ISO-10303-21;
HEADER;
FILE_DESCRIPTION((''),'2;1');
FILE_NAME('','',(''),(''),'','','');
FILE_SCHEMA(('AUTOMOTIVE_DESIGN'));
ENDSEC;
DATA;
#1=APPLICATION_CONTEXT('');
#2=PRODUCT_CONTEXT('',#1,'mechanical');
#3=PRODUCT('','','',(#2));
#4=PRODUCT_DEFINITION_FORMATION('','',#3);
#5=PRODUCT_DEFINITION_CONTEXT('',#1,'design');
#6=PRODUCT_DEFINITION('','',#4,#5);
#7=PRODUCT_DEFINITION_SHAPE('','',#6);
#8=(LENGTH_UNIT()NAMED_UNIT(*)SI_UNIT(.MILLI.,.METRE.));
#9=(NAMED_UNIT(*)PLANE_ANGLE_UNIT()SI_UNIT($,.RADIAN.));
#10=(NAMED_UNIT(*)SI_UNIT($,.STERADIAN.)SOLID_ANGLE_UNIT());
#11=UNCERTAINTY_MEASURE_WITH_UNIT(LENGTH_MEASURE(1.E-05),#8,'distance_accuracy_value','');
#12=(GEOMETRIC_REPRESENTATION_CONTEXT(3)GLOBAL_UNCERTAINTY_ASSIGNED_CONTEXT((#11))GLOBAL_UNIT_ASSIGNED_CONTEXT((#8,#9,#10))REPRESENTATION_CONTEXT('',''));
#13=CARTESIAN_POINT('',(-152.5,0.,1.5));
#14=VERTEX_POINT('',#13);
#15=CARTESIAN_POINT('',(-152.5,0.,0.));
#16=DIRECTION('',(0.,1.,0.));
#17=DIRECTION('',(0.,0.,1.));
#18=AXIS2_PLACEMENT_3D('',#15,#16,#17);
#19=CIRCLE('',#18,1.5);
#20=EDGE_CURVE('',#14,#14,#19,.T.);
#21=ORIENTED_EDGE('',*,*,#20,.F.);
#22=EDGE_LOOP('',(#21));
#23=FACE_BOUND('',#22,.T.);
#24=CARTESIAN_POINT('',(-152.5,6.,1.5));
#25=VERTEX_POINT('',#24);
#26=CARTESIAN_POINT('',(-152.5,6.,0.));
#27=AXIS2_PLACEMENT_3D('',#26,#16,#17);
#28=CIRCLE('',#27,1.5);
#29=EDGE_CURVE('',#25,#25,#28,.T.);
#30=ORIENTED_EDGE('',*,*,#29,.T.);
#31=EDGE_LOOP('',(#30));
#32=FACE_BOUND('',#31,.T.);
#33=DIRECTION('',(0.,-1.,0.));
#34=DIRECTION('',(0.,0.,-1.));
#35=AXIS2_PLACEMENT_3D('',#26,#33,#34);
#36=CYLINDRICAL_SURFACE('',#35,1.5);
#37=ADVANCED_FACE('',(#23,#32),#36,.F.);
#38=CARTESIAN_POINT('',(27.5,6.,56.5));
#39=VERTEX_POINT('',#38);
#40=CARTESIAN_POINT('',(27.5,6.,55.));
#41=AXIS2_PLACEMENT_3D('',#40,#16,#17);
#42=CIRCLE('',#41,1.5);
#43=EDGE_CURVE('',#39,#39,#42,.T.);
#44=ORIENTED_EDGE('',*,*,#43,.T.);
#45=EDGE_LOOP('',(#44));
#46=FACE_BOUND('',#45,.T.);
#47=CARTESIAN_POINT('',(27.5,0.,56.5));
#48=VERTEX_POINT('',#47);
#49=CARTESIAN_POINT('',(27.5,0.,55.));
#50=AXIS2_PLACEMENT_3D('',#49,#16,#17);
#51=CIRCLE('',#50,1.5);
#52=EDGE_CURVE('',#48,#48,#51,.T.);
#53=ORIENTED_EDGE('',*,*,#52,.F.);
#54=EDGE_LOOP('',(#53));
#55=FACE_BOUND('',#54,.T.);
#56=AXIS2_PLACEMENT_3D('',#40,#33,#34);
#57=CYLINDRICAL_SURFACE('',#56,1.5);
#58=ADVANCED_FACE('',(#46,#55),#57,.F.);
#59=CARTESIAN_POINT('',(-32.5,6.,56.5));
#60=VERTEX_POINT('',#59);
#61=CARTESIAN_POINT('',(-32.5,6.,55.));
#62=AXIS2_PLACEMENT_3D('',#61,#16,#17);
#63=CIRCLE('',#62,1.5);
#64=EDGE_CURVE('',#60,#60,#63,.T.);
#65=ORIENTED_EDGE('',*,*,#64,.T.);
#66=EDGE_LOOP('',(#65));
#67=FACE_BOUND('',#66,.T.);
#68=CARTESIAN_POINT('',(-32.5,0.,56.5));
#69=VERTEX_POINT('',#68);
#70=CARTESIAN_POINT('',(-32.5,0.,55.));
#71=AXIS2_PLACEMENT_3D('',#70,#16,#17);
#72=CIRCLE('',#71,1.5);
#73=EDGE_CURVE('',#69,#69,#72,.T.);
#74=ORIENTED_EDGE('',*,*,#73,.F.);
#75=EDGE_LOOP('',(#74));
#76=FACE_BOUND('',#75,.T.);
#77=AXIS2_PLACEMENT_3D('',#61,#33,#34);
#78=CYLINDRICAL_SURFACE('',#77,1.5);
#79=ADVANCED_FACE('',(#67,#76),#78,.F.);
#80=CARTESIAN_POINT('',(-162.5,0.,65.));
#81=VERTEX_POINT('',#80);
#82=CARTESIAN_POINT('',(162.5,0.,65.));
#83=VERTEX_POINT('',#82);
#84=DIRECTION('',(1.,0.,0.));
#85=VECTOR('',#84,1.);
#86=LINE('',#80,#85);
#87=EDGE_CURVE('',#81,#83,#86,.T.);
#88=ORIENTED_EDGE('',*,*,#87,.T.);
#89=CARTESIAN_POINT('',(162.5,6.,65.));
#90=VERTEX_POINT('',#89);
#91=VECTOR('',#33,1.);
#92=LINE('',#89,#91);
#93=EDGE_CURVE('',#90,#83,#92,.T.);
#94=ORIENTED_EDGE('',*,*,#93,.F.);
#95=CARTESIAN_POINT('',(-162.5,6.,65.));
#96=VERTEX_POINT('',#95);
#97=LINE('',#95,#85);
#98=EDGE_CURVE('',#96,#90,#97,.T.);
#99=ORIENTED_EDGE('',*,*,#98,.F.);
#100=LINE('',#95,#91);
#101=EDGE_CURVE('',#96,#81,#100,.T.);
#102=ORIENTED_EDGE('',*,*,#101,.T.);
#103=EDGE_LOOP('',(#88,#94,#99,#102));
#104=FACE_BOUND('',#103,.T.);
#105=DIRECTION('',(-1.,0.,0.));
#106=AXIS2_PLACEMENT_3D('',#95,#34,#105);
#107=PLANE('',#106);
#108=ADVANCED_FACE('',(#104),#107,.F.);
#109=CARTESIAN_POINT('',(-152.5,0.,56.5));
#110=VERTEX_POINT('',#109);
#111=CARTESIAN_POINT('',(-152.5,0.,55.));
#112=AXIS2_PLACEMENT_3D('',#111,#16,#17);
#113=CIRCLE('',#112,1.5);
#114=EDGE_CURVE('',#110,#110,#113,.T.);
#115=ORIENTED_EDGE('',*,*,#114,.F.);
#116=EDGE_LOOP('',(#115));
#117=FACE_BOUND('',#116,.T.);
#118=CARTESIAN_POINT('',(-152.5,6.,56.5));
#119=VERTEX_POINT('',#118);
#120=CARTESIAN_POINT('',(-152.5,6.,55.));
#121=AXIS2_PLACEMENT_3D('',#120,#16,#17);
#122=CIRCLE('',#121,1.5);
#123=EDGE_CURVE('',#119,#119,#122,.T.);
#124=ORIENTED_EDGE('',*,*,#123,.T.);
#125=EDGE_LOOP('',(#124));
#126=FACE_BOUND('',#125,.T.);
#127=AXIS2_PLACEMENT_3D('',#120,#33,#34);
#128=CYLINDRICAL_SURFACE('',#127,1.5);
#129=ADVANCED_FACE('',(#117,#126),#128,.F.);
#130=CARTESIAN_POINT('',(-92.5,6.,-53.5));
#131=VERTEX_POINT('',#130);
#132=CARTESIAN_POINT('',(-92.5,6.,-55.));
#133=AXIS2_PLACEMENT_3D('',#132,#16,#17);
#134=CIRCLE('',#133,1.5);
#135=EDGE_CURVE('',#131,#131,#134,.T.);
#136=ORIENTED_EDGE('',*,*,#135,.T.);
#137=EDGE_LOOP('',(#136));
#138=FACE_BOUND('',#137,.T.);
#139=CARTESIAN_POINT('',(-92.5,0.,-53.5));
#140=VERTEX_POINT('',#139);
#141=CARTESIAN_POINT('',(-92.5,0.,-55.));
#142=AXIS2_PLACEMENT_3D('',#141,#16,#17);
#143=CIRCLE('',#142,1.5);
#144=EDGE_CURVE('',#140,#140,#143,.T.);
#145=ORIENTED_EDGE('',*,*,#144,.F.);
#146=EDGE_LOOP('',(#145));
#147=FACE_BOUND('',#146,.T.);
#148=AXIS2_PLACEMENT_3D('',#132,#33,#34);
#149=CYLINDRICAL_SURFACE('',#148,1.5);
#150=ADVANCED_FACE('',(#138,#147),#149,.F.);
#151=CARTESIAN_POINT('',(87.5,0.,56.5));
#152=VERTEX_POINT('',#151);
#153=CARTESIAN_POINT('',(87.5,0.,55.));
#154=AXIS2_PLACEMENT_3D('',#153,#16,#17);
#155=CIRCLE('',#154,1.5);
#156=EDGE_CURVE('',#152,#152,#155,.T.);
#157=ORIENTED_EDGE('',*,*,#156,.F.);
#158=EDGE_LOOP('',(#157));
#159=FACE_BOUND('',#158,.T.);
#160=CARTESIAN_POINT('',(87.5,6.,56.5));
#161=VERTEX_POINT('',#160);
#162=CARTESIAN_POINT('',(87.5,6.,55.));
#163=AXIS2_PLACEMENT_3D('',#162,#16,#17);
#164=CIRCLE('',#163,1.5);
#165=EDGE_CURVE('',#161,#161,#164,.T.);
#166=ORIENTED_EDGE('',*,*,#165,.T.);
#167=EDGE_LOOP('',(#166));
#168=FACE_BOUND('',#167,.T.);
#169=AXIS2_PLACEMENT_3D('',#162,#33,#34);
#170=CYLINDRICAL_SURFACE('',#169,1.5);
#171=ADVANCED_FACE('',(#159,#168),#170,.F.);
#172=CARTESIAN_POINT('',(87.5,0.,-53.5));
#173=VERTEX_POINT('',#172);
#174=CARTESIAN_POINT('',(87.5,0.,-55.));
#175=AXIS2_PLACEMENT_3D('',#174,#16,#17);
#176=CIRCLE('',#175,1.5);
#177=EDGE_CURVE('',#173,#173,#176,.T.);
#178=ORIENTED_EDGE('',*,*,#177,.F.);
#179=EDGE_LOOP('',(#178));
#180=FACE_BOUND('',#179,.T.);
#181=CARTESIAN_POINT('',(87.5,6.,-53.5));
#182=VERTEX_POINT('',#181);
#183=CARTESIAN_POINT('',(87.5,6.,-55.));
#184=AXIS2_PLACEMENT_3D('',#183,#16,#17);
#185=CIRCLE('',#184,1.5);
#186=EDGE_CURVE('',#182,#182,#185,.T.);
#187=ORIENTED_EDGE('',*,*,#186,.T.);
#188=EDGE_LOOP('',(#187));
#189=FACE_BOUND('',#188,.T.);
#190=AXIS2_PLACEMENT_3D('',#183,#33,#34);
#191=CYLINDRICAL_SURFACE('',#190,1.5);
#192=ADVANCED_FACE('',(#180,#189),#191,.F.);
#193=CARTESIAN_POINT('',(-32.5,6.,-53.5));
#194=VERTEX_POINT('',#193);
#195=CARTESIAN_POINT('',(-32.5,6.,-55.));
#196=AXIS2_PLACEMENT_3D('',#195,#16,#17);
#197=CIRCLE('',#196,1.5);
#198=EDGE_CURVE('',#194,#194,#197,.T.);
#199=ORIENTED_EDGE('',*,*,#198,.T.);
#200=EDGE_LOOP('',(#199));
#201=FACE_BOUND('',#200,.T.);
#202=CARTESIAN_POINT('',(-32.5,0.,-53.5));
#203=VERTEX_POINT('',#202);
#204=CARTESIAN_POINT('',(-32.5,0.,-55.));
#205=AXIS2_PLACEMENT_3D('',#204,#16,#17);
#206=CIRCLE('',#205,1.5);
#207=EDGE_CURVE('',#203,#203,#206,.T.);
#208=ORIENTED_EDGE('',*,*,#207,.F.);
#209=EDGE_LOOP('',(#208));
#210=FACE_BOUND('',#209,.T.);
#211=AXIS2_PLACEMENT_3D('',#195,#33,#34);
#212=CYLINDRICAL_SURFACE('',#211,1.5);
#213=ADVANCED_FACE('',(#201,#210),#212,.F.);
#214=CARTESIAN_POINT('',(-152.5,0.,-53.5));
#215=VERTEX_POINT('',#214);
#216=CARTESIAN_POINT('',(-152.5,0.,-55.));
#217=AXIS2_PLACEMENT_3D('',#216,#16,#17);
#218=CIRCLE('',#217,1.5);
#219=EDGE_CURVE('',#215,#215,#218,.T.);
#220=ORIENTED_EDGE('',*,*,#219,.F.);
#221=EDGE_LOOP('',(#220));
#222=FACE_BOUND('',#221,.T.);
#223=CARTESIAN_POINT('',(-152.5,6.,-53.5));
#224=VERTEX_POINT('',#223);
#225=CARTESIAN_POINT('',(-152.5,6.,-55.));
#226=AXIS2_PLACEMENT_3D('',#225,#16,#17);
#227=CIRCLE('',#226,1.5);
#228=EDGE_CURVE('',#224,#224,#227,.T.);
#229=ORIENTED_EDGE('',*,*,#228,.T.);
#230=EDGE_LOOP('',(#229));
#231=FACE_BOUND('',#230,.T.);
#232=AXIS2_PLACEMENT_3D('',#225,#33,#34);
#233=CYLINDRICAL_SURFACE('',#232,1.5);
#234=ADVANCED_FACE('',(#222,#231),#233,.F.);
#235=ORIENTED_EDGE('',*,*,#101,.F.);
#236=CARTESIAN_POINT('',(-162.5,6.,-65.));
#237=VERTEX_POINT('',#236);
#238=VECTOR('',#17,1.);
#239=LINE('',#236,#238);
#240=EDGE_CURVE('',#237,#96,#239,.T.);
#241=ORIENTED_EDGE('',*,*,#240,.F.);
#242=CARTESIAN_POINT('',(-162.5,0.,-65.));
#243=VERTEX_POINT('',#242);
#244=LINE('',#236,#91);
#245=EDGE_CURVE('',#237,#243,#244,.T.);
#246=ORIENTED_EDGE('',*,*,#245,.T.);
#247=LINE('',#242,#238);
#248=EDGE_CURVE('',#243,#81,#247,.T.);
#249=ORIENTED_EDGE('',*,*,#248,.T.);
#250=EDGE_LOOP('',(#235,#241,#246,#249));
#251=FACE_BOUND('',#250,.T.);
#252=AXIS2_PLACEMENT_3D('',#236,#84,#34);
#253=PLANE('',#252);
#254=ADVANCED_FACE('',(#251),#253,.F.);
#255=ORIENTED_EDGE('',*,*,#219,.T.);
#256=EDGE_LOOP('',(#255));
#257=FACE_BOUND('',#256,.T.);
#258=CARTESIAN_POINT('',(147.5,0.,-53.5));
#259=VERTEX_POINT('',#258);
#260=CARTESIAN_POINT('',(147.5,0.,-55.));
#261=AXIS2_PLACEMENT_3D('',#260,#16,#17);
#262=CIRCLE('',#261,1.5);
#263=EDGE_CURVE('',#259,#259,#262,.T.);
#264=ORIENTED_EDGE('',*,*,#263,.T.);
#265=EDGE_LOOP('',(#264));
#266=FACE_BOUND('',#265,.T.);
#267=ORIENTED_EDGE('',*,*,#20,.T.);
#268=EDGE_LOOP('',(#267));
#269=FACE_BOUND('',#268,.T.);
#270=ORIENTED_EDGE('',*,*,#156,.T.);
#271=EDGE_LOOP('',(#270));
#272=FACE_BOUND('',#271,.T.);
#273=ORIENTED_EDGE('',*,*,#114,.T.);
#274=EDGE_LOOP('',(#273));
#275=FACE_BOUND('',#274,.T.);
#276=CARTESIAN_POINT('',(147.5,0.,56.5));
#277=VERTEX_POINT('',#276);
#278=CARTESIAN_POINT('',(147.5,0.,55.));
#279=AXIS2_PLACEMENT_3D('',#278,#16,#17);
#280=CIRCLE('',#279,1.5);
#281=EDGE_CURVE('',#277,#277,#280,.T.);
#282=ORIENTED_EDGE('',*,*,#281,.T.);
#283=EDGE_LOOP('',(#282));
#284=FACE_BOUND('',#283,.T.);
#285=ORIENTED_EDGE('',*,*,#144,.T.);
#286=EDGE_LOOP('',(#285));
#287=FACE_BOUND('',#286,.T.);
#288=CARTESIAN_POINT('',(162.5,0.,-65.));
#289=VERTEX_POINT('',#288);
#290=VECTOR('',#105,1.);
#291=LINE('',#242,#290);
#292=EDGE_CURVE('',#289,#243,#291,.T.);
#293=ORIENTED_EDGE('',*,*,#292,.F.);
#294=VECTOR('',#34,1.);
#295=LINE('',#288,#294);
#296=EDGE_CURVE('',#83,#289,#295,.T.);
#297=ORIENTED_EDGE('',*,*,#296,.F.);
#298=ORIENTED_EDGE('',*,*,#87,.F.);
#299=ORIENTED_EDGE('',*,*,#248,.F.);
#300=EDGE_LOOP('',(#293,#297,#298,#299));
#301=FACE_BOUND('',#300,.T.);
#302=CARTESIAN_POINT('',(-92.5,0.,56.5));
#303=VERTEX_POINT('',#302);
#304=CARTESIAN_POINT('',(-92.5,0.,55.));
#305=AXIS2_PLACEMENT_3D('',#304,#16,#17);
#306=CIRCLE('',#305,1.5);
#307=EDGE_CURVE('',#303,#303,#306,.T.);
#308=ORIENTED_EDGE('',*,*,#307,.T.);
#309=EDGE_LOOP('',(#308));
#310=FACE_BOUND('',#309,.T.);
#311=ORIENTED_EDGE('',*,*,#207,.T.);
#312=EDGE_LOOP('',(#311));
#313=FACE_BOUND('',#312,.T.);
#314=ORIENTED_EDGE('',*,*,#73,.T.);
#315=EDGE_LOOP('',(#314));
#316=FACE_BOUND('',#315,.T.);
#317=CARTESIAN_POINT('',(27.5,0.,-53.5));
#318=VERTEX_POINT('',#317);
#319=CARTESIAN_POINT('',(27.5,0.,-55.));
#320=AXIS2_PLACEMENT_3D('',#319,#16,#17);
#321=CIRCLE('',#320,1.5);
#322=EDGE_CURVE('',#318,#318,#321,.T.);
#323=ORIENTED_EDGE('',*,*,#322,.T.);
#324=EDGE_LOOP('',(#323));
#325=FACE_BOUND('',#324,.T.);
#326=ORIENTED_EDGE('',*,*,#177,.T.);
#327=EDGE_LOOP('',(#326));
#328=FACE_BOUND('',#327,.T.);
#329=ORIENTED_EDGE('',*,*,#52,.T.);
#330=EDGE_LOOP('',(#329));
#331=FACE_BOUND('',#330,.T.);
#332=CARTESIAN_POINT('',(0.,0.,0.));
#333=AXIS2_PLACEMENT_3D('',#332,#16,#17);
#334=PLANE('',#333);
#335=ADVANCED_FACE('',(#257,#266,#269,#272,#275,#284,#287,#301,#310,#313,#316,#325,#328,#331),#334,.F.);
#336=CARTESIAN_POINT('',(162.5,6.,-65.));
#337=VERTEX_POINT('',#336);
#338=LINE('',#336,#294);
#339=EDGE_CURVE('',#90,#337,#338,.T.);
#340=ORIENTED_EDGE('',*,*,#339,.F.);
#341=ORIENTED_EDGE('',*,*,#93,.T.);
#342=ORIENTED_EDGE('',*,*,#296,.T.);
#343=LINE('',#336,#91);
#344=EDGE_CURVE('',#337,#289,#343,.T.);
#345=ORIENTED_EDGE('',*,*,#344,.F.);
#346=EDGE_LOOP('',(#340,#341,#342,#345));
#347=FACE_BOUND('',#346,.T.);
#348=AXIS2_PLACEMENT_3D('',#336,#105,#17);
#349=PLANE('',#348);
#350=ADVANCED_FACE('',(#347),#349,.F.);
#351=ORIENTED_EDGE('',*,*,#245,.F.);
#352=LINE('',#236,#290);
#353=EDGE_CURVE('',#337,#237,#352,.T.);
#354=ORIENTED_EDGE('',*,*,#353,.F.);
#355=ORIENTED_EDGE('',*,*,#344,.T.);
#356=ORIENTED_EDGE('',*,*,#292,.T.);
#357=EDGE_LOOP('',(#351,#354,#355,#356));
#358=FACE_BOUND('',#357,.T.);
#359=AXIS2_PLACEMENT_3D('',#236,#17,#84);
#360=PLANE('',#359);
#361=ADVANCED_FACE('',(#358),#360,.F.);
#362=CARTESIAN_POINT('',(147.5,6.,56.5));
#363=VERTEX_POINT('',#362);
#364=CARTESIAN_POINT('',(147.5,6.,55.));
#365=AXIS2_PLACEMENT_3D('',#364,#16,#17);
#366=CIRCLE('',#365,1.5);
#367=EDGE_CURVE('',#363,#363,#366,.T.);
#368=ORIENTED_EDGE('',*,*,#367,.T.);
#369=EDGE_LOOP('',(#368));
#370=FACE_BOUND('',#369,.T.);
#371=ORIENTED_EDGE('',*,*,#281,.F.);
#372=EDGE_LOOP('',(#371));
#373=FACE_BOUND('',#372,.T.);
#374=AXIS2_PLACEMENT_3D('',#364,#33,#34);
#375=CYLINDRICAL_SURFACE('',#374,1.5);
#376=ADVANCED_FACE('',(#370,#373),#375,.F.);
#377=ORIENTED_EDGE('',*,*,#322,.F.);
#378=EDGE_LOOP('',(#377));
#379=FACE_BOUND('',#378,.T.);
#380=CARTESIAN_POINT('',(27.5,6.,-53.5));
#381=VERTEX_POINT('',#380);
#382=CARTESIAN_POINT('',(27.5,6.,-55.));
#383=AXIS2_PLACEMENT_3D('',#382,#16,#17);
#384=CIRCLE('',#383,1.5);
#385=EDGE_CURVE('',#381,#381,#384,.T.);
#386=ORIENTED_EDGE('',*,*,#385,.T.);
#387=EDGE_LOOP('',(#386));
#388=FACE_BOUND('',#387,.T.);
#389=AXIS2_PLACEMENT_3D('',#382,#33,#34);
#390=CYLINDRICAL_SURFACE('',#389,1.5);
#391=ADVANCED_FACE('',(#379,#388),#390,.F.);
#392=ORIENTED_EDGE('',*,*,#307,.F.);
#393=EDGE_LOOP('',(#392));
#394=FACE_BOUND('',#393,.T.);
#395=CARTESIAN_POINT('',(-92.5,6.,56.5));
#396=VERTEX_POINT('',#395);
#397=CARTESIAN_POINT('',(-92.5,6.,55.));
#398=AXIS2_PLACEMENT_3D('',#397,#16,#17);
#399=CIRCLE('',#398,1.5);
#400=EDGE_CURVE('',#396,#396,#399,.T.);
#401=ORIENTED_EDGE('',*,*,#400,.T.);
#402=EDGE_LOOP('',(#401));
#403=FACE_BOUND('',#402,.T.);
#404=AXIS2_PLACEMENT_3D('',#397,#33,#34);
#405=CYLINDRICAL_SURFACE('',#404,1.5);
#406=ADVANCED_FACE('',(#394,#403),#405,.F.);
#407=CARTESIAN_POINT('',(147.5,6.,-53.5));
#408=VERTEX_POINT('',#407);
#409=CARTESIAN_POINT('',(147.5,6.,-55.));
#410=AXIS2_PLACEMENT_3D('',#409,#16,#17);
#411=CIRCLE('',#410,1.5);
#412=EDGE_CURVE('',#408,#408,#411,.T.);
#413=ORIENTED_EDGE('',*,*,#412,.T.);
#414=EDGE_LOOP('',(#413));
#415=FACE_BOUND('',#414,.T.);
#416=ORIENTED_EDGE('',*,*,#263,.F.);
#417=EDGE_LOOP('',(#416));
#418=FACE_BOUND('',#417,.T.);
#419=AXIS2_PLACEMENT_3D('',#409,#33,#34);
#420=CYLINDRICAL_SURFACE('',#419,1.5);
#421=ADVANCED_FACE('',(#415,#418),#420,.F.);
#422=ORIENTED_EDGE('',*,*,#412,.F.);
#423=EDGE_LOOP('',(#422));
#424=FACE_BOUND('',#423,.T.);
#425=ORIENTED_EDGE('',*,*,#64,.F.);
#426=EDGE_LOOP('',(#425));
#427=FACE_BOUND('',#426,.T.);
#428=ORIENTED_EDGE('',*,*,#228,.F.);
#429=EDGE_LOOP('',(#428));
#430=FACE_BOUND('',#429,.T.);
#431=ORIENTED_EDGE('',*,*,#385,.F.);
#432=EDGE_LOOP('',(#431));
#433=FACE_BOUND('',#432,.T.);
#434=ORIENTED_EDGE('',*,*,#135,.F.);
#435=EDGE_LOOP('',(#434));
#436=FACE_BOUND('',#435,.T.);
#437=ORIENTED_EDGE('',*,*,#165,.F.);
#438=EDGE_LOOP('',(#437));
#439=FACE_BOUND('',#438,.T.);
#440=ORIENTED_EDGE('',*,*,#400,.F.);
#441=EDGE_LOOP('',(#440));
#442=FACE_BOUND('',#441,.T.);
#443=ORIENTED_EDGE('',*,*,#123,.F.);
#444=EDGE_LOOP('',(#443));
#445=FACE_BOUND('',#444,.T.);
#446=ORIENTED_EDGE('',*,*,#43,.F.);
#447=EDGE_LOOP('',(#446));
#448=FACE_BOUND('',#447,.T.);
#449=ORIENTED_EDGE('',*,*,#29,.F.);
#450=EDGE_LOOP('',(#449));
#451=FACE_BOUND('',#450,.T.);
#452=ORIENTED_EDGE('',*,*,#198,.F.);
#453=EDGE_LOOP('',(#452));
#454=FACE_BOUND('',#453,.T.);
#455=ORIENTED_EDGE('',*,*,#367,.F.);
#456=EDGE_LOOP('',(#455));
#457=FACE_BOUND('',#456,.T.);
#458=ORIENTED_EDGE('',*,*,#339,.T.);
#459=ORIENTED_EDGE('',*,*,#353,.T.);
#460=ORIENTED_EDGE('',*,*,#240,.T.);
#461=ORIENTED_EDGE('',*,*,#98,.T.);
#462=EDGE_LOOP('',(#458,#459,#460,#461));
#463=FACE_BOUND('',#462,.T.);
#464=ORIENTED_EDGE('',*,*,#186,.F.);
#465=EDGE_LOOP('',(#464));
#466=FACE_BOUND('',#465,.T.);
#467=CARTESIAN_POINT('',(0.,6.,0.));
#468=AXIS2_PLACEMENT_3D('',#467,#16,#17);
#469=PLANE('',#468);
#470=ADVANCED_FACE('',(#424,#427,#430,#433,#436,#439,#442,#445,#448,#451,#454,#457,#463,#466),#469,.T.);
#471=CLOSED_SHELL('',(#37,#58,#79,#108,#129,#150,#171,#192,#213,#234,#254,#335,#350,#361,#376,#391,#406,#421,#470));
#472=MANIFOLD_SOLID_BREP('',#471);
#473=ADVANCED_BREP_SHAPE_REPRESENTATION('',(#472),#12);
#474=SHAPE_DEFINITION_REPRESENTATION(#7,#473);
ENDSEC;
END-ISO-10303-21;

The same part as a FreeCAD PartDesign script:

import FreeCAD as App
import Part
import Sketcher
from FreeCAD import Vector

doc = App.newDocument("Part")
body = doc.addObject("PartDesign::Body", "Body")

# Sketch on XZ plane
sketch1 = body.newObject("Sketcher::SketchObject", "Sketch")
sketch1.AttachmentSupport = (doc.getObject("XZ_Plane"), [""])
sketch1.MapMode = "FlatFace"
sketch1.addGeometry([
    Part.LineSegment(Vector(-162.5, -65, 0), Vector(-162.5, 65, 0)),  # 0
    Part.LineSegment(Vector(-162.5, 65, 0), Vector(162.5, 65, 0)),  # 1
    Part.LineSegment(Vector(162.5, 65, 0), Vector(162.5, -65, 0)),  # 2
    Part.LineSegment(Vector(162.5, -65, 0), Vector(-162.5, -65, 0)),  # 3
    Part.Circle(Vector(-152.5, 55, 0), Vector(0, 0, 1), 1.5),  # 4
    Part.Circle(Vector(-92.5, 55, 0), Vector(0, 0, 1), 1.5),  # 5
    Part.Circle(Vector(-32.5, 55, 0), Vector(0, 0, 1), 1.5),  # 6
    Part.Circle(Vector(27.5, 55, 0), Vector(0, 0, 1), 1.5),  # 7
    Part.Circle(Vector(87.5, 55, 0), Vector(0, 0, 1), 1.5),  # 8
    Part.Circle(Vector(147.5, 55, 0), Vector(0, 0, 1), 1.5),  # 9
    Part.Circle(Vector(-152.5, 0, 0), Vector(0, 0, 1), 1.5),  # 10
    Part.Circle(Vector(-152.5, -55, 0), Vector(0, 0, 1), 1.5),  # 11
    Part.Circle(Vector(-92.5, -55, 0), Vector(0, 0, 1), 1.5),  # 12
    Part.Circle(Vector(-32.5, -55, 0), Vector(0, 0, 1), 1.5),  # 13
    Part.Circle(Vector(27.5, -55, 0), Vector(0, 0, 1), 1.5),  # 14
    Part.Circle(Vector(87.5, -55, 0), Vector(0, 0, 1), 1.5),  # 15
    Part.Circle(Vector(147.5, -55, 0), Vector(0, 0, 1), 1.5),  # 16
], False)
sketch1.addConstraint([
    Sketcher.Constraint("Coincident", 0, 2, 1, 1),
    Sketcher.Constraint("Coincident", 1, 2, 2, 1),
    Sketcher.Constraint("Coincident", 2, 2, 3, 1),
    Sketcher.Constraint("Coincident", 3, 2, 0, 1),
    Sketcher.Constraint("Vertical", 0),
    Sketcher.Constraint("Horizontal", 1),
    Sketcher.Constraint("Vertical", 2),
    Sketcher.Constraint("Horizontal", 3),
    Sketcher.Constraint("Equal", 4, 5),
    Sketcher.Constraint("Equal", 5, 6),
    Sketcher.Constraint("Equal", 6, 7),
    Sketcher.Constraint("Equal", 7, 8),
    Sketcher.Constraint("Equal", 8, 9),
    Sketcher.Constraint("Equal", 9, 10),
    Sketcher.Constraint("Equal", 10, 11),
    Sketcher.Constraint("Equal", 11, 12),
    Sketcher.Constraint("Equal", 12, 13),
    Sketcher.Constraint("Equal", 13, 14),
    Sketcher.Constraint("Equal", 14, 15),
    Sketcher.Constraint("Equal", 15, 16),
    Sketcher.Constraint("Symmetric", 0, 2, 2, 2, -1, 1),
    Sketcher.Constraint("Symmetric", 4, 3, 11, 3, -1),
    Sketcher.Constraint("Symmetric", 5, 3, 12, 3, -1),
    Sketcher.Constraint("Symmetric", 6, 3, 13, 3, -1),
    Sketcher.Constraint("Symmetric", 7, 3, 14, 3, -1),
    Sketcher.Constraint("Symmetric", 8, 3, 15, 3, -1),
    Sketcher.Constraint("Symmetric", 9, 3, 16, 3, -1),
    Sketcher.Constraint("PointOnObject", 10, 3, -1),
    Sketcher.Constraint("Horizontal", 4, 3, 5, 3),
    Sketcher.Constraint("Horizontal", 5, 3, 6, 3),
    Sketcher.Constraint("Horizontal", 6, 3, 7, 3),
    Sketcher.Constraint("Horizontal", 7, 3, 8, 3),
    Sketcher.Constraint("Horizontal", 8, 3, 9, 3),
    Sketcher.Constraint("Vertical", 4, 3, 10, 3),
    Sketcher.Constraint("Diameter", 4, 3.0),
    Sketcher.Constraint("DistanceX", 1, 1, 1, 2, 325.0),
    Sketcher.Constraint("DistanceY", 0, 1, 0, 2, 130.0),
    Sketcher.Constraint("DistanceY", -1, 1, 4, 3, 55.0),
    Sketcher.Constraint("DistanceX", 4, 3, 5, 3, 60.0),
    Sketcher.Constraint("DistanceX", 5, 3, 6, 3, 60.0),
    Sketcher.Constraint("DistanceX", 6, 3, 7, 3, 60.0),
    Sketcher.Constraint("DistanceX", 7, 3, 8, 3, 60.0),
    Sketcher.Constraint("DistanceX", 8, 3, 9, 3, 60.0),
    Sketcher.Constraint("DistanceX", 0, 2, 4, 3, 10.0),
])
pad1 = body.newObject("PartDesign::Pad", "Pad")
pad1.Profile = sketch1
pad1.Length = 6
pad1.Reversed = True

doc.recompute()
